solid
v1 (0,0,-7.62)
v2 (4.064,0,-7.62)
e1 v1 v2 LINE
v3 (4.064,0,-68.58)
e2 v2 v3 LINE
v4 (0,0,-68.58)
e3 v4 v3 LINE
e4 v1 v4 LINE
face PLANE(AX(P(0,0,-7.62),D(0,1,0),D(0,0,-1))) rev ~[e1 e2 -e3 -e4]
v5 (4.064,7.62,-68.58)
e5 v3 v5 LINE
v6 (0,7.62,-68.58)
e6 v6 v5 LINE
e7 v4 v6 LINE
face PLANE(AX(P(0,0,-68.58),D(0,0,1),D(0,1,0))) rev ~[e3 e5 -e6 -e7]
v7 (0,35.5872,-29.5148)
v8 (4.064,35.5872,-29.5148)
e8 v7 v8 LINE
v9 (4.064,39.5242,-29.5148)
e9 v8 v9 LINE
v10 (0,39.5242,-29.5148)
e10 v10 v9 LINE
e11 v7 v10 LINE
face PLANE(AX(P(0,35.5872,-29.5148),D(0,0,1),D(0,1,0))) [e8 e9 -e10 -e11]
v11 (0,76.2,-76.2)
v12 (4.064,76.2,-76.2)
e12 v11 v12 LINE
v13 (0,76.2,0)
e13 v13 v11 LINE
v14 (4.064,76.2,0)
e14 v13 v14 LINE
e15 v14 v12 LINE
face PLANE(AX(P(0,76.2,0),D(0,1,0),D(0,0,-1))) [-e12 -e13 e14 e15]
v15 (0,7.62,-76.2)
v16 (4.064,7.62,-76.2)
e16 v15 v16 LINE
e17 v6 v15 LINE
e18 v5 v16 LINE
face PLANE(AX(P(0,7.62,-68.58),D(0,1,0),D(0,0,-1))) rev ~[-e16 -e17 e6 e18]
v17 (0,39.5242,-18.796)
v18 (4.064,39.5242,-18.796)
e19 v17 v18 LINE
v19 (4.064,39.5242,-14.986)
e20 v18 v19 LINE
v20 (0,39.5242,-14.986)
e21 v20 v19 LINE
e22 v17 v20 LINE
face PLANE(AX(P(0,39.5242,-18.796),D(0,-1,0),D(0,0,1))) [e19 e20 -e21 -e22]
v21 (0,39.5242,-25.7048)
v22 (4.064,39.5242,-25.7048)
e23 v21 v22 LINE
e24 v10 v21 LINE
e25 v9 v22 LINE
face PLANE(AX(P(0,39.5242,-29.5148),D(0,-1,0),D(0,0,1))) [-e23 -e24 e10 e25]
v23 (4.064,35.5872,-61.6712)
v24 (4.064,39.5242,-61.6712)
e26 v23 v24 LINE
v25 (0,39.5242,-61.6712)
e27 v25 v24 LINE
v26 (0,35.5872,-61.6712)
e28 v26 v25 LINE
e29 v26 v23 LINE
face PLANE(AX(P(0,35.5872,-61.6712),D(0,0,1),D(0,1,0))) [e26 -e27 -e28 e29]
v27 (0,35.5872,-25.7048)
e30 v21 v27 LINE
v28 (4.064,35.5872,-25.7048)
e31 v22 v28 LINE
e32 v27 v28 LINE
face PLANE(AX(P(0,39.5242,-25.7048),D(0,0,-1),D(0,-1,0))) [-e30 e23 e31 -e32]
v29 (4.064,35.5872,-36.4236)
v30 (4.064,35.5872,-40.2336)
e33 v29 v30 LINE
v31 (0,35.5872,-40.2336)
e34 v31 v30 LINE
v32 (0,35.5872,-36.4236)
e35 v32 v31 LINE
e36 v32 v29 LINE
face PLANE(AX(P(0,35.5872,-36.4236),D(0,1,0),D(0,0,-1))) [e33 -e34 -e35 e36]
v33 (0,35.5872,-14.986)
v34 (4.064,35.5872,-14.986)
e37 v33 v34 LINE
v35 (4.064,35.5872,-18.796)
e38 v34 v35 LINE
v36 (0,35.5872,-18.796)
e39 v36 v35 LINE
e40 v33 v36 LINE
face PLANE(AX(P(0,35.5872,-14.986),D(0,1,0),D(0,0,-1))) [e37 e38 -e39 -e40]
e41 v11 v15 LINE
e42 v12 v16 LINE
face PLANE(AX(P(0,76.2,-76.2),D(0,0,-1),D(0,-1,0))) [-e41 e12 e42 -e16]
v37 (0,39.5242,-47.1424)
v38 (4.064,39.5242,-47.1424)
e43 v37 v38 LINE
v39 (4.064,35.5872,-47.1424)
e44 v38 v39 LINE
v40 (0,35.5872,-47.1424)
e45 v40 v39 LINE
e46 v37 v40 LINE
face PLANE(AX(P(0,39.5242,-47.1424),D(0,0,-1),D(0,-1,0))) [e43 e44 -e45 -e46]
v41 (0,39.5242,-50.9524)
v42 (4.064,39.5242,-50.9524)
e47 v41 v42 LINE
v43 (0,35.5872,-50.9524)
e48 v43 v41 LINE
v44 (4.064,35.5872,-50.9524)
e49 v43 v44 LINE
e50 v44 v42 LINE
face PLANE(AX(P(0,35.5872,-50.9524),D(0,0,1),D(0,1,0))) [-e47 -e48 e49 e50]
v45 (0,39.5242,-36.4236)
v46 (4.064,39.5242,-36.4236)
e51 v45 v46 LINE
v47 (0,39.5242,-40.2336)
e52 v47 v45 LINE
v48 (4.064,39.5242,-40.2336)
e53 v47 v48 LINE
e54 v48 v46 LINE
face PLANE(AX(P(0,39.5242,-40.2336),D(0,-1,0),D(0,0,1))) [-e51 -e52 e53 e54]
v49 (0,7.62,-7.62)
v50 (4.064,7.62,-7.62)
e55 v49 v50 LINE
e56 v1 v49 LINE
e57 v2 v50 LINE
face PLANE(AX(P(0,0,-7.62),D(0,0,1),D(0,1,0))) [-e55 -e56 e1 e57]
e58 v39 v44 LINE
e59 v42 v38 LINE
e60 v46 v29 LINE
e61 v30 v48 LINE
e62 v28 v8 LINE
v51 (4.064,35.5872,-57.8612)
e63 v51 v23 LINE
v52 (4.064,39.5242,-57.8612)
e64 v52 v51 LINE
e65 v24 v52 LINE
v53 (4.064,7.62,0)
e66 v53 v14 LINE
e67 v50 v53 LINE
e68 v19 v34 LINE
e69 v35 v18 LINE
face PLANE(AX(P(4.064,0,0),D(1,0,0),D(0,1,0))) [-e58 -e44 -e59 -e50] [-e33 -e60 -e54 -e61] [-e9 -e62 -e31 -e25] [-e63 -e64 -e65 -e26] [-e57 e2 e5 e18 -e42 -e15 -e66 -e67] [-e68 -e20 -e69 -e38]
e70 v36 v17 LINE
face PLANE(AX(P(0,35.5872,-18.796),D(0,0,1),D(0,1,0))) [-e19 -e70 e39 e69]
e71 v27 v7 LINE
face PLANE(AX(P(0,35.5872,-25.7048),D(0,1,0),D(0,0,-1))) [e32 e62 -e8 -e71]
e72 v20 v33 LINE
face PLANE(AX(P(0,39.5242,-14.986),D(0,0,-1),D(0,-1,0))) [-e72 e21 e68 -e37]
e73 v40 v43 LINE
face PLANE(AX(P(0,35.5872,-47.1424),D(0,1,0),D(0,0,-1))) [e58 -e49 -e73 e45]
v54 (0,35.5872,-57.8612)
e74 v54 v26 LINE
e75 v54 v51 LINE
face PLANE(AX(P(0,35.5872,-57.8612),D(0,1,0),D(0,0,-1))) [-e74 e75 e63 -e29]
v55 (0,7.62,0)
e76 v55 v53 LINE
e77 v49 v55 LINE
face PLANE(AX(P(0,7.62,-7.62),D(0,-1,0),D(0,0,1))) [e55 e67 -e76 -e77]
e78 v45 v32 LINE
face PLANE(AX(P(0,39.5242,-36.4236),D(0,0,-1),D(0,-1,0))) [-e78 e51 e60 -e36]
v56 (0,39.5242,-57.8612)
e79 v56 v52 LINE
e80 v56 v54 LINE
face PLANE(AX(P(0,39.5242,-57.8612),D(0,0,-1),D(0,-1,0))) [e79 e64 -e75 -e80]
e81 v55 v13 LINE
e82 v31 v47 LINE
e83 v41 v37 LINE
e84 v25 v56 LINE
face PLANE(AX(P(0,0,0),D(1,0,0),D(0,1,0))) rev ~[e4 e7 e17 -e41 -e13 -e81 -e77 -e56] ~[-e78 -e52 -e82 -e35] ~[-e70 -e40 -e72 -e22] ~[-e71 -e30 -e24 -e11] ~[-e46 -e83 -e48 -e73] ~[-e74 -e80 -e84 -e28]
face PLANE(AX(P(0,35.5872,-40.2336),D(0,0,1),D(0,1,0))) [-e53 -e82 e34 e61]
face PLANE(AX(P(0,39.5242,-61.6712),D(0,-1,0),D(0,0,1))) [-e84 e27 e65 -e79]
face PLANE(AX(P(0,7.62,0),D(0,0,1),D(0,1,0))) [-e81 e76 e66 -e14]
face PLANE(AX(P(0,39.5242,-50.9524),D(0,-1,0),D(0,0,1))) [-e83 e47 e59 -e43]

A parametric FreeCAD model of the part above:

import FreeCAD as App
import Part
import Sketcher
from FreeCAD import Vector
Q = App.Units.Quantity


def add_polygon(sketch, points):
    """Adds a closed chain of lines whose ends are joined by coincident constraints."""
    first, n = sketch.GeometryCount, len(points)
    for a, b in zip(points, points[1:] + points[:1]):
        sketch.addGeometry(Part.LineSegment(App.Vector(*a, 0), App.Vector(*b, 0)), False)
    for i in range(n):
        sketch.addConstraint(Sketcher.Constraint("Coincident", first + i, 2, first + (i + 1) % n, 1))

doc = App.newDocument("Part")
body = doc.addObject("PartDesign::Body", "Body")

# Sketch on YZ plane
sketch1 = body.newObject("Sketcher::SketchObject", "Sketch")
sketch1.AttachmentSupport = (doc.getObject("YZ_Plane"), [""])
sketch1.MapMode = "FlatFace"
add_polygon(sketch1, [(76.2, 0), (7.6, 0), (7.6, -7.6), (0, -7.6), (0, -68.6), (7.6, -68.6), (7.6, -76.2), (76.2, -76.2)])  # lines 0-7
add_polygon(sketch1, [(35.6, -57.9), (39.5, -57.9), (39.5, -61.7), (35.6, -61.7)])  # lines 8-11
add_polygon(sketch1, [(35.6, -47.1), (39.5, -47.1), (39.5, -51), (35.6, -51)])  # lines 12-15
add_polygon(sketch1, [(35.6, -36.4), (39.5, -36.4), (39.5, -40.2), (35.6, -40.2)])  # lines 16-19
add_polygon(sketch1, [(35.6, -25.7), (39.5, -25.7), (39.5, -29.5), (35.6, -29.5)])  # lines 20-23
add_polygon(sketch1, [(35.6, -15), (39.5, -15), (39.5, -18.8), (35.6, -18.8)])  # lines 24-27
sketch1.addConstraint([
    Sketcher.Constraint("Horizontal", 0),
    Sketcher.Constraint("Vertical", 1),
    Sketcher.Constraint("Horizontal", 2),
    Sketcher.Constraint("Vertical", 3),
    Sketcher.Constraint("Horizontal", 4),
    Sketcher.Constraint("Vertical", 5),
    Sketcher.Constraint("Horizontal", 6),
    Sketcher.Constraint("Vertical", 7),
    Sketcher.Constraint("Horizontal", 8),
    Sketcher.Constraint("Vertical", 9),
    Sketcher.Constraint("Horizontal", 10),
    Sketcher.Constraint("Vertical", 11),
    Sketcher.Constraint("Horizontal", 12),
    Sketcher.Constraint("Vertical", 13),
    Sketcher.Constraint("Horizontal", 14),
    Sketcher.Constraint("Vertical", 15),
    Sketcher.Constraint("Horizontal", 16),
    Sketcher.Constraint("Vertical", 17),
    Sketcher.Constraint("Horizontal", 18),
    Sketcher.Constraint("Vertical", 19),
    Sketcher.Constraint("Horizontal", 20),
    Sketcher.Constraint("Vertical", 21),
    Sketcher.Constraint("Horizontal", 22),
    Sketcher.Constraint("Vertical", 23),
    Sketcher.Constraint("Horizontal", 24),
    Sketcher.Constraint("Vertical", 25),
    Sketcher.Constraint("Horizontal", 26),
    Sketcher.Constraint("Vertical", 27),
    Sketcher.Constraint("PointOnObject", 0, 2, -1),
    Sketcher.Constraint("PointOnObject", 2, 2, -2),
    Sketcher.Constraint("Vertical", 1, 2, 4, 2),
    Sketcher.Constraint("Vertical", 9, 2, 12, 2),
    Sketcher.Constraint("Vertical", 11, 2, 14, 2),
    Sketcher.Constraint("Vertical", 13, 2, 16, 2),
    Sketcher.Constraint("Vertical", 15, 2, 18, 2),
    Sketcher.Constraint("Vertical", 17, 2, 20, 2),
    Sketcher.Constraint("Vertical", 19, 2, 22, 2),
    Sketcher.Constraint("Vertical", 21, 2, 24, 2),
    Sketcher.Constraint("Vertical", 23, 2, 26, 2),
    Sketcher.Constraint("Equal", 4, 1),
    Sketcher.Constraint("Equal", 1, 5),
    Sketcher.Constraint("Equal", 11, 13),
    Sketcher.Constraint("Equal", 15, 17),
    Sketcher.Constraint("Equal", 19, 21),
    Sketcher.Constraint("Equal", 23, 25),
    Sketcher.Constraint("DistanceY", 9, 2, 9, 1, Q("0.15 in")),
    Sketcher.Constraint("DistanceX", 8, 1, 8, 2, Q("0.155 in")),
    Sketcher.Constraint("DistanceY", 7, 1, 7, 2, Q("3 in")),
    Sketcher.Constraint("DistanceX", 0, 2, 0, 1, Q("2.7 in")),
    Sketcher.Constraint("DistanceX", 2, 2, 2, 1, Q("0.3 in")),
    Sketcher.Constraint("DistanceY", 4, 2, 8, 2, Q("0.422 in")),
    Sketcher.Constraint("DistanceY", 8, 2, 12, 2, Q("0.422 in")),
    Sketcher.Constraint("DistanceY", 12, 2, 16, 2, Q("0.422 in")),
    Sketcher.Constraint("DistanceY", 16, 2, 20, 2, Q("0.422 in")),
    Sketcher.Constraint("DistanceY", 20, 2, 24, 2, Q("0.422 in")),
    Sketcher.Constraint("DistanceX", -1, 1, 8, 2, Q("39.5242 mm")),
])
pad1 = body.newObject("PartDesign::Pad", "Pad")
pad1.Profile = sketch1
pad1.Length = Q("0.16 in")

doc.recompute()
